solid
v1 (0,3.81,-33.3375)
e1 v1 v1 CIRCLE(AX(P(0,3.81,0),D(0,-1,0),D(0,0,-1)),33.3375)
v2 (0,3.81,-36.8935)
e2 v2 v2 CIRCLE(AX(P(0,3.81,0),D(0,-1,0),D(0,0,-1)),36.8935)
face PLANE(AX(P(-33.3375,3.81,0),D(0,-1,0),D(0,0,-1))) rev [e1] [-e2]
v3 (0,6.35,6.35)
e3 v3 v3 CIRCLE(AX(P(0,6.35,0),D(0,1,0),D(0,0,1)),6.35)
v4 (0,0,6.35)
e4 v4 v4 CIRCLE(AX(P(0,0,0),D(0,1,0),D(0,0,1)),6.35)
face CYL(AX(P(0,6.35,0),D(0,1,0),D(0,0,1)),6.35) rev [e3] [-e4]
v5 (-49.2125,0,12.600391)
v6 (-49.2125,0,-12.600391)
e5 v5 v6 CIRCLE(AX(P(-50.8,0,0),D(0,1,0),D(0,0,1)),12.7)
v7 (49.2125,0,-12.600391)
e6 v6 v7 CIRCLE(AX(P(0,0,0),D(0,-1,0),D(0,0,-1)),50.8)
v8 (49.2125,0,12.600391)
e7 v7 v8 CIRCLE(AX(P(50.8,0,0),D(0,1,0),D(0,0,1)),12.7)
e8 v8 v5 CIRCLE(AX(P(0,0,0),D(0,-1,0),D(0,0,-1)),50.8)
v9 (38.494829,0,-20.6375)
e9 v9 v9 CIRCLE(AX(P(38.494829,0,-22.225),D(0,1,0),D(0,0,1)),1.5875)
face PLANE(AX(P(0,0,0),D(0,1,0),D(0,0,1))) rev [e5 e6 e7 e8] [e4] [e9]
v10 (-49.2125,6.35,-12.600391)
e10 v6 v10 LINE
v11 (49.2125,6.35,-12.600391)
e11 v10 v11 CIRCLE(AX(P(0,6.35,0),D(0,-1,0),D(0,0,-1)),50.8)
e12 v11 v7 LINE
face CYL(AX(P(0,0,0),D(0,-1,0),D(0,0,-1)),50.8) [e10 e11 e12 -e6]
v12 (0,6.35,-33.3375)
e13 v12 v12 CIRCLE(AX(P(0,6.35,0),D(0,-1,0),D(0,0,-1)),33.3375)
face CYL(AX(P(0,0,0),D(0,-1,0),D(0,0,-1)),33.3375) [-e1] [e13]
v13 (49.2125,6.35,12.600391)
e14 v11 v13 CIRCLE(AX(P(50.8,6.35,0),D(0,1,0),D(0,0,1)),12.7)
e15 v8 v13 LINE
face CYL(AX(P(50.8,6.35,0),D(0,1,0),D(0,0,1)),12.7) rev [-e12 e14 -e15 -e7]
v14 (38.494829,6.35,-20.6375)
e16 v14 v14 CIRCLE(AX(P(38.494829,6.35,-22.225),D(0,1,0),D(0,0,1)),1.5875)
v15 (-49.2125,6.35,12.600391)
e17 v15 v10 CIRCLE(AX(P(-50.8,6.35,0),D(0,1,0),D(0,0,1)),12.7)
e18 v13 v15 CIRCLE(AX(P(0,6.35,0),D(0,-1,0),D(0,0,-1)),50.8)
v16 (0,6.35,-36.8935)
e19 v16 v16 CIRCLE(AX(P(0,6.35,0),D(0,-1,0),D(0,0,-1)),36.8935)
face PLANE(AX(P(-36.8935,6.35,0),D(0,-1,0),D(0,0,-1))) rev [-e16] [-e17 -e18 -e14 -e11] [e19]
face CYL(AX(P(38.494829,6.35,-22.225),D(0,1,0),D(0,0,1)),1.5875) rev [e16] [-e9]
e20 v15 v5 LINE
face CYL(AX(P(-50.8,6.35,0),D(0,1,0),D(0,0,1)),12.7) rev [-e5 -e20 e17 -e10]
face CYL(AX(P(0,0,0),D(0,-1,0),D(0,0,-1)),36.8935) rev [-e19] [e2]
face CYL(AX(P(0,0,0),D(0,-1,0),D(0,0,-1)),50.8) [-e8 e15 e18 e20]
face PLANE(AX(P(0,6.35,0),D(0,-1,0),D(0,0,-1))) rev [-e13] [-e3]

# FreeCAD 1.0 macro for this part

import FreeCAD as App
import Part
import Sketcher
Q = App.Units.Quantity


def add_polygon(sketch, points):
    """Adds a closed chain of lines whose ends are joined by coincident constraints."""
    first, n = sketch.GeometryCount, len(points)
    for a, b in zip(points, points[1:] + points[:1]):
        sketch.addGeometry(Part.LineSegment(App.Vector(*a, 0), App.Vector(*b, 0)), False)
    for i in range(n):
        sketch.addConstraint(Sketcher.Constraint("Coincident", first + i, 2, first + (i + 1) % n, 1))

doc = App.newDocument("Part")
body = doc.addObject("PartDesign::Body", "Body")

sketch1 = body.newObject("Sketcher::SketchObject", "Sketch")
sketch1.AttachmentSupport = (doc.getObject("XY_Plane"), [""])
sketch1.MapMode = "FlatFace"
add_polygon(sketch1, [(-33.3, 6.3), (-33.3, 3.8), (-36.9, 3.8), (-36.9, 6.3), (-50.8, 6.3), (-50.8, 0), (0, 0), (0, 6.3)])
sketch1.addConstraint(Sketcher.Constraint("Vertical", 0))
sketch1.addConstraint(Sketcher.Constraint("Horizontal", 1))
sketch1.addConstraint(Sketcher.Constraint("Vertical", 2))
sketch1.addConstraint(Sketcher.Constraint("Horizontal", 3))
sketch1.addConstraint(Sketcher.Constraint("Vertical", 4))
sketch1.addConstraint(Sketcher.Constraint("Horizontal", 5))
sketch1.addConstraint(Sketcher.Constraint("Vertical", 6))
sketch1.addConstraint(Sketcher.Constraint("Horizontal", 7))
sketch1.addConstraint(Sketcher.Constraint("Coincident", 5, 2, -1, 1))
sketch1.addConstraint(Sketcher.Constraint("Horizontal", 3, 2, 6, 2))
sketch1.addConstraint(Sketcher.Constraint("DistanceX", 5, 1, 5, 2, Q("2 in")))
sketch1.addConstraint(Sketcher.Constraint("DistanceY", 0, 2, 0, 1, Q("0.1 in")))
sketch1.addConstraint(Sketcher.Constraint("DistanceX", 1, 2, 1, 1, Q("0.14 in")))
sketch1.addConstraint(Sketcher.Constraint("DistanceY", 4, 2, 4, 1, Q("0.25 in")))
sketch1.addConstraint(Sketcher.Constraint("DistanceX", 7, 2, 7, 1, Q("1.3125 in")))
revolution = body.newObject("PartDesign::Revolution", "Revolution")
revolution.Profile = sketch1
revolution.ReferenceAxis = (sketch1, ["V_Axis"])
revolution.Angle = 360

sketch2 = body.newObject("Sketcher::SketchObject", "Sketch001")
sketch2.AttachmentSupport = (doc.getObject("XZ_Plane"), [""])
sketch2.MapMode = "FlatFace"
sketch2.AttachmentOffset = App.Placement(App.Vector(0, 0, -0.25 * 25.4), App.Rotation())
sketch2.addGeometry(Part.Circle(App.Vector(0, 0, 0), App.Vector(0, 0, 1), 6), False)
sketch2.addConstraint(Sketcher.Constraint("Coincident", 0, 3, -1, 1))
sketch2.addConstraint(Sketcher.Constraint("Diameter", 0, Q("0.5 in")))
doc.recompute()
hole = body.newObject("PartDesign::Hole", "Hole")
hole.Profile = sketch2
hole.ThreadType = "None"
hole.Diameter = Q("0.5 in")
hole.DepthType = "ThroughAll"
hole.Reversed = True

sketch3 = body.newObject("Sketcher::SketchObject", "Sketch002")
sketch3.AttachmentSupport = (doc.getObject("XZ_Plane"), [""])
sketch3.MapMode = "FlatFace"
sketch3.AttachmentOffset = App.Placement(App.Vector(0, 0, -0.25 * 25.4), App.Rotation())
sketch3.addGeometry(Part.Circle(App.Vector(51, 0, 0), App.Vector(0, 0, 1), 13), False)
sketch3.addGeometry(Part.Circle(App.Vector(-51, 0, 0), App.Vector(0, 0, 1), 13), False)
sketch3.addConstraint(Sketcher.Constraint("Equal", 0, 1))
sketch3.addConstraint(Sketcher.Constraint("Symmetric", 0, 3, 1, 3, -1, 1))
sketch3.addConstraint(Sketcher.Constraint("PointOnObject", 0, 3, -1))
sketch3.addConstraint(Sketcher.Constraint("Diameter", 0, Q("1 in")))
sketch3.addConstraint(Sketcher.Constraint("DistanceX", -1, 1, 0, 3, Q("2 in")))
doc.recompute()
hole2 = body.newObject("PartDesign::Hole", "Hole001")
hole2.Profile = sketch3
hole2.ThreadType = "None"
hole2.Diameter = Q("1 in")
hole2.DepthType = "ThroughAll"
hole2.Reversed = True

sketch4 = body.newObject("Sketcher::SketchObject", "Sketch003")
sketch4.AttachmentSupport = (doc.getObject("XZ_Plane"), [""])
sketch4.MapMode = "FlatFace"
sketch4.AttachmentOffset = App.Placement(App.Vector(0, 0, -0.25 * 25.4), App.Rotation())
sketch4.addGeometry(Part.Circle(App.Vector(38.5, -22.2, 0), App.Vector(0, 0, 1), 1.6), False)
sketch4.addConstraint(Sketcher.Constraint("Diameter", 0, Q("0.125 in")))
sketch4.addConstraint(Sketcher.Constraint("DistanceY", 0, 3, -1, 1, Q("0.875 in")))
sketch4.addConstraint(Sketcher.Constraint("DistanceX", -1, 1, 0, 3, 38.494829))
doc.recompute()
hole3 = body.newObject("PartDesign::Hole", "Hole002")
hole3.Profile = sketch4
hole3.ThreadType = "None"
hole3.Diameter = Q("0.125 in")
hole3.DepthType = "ThroughAll"
hole3.Reversed = True

doc.recompute()
